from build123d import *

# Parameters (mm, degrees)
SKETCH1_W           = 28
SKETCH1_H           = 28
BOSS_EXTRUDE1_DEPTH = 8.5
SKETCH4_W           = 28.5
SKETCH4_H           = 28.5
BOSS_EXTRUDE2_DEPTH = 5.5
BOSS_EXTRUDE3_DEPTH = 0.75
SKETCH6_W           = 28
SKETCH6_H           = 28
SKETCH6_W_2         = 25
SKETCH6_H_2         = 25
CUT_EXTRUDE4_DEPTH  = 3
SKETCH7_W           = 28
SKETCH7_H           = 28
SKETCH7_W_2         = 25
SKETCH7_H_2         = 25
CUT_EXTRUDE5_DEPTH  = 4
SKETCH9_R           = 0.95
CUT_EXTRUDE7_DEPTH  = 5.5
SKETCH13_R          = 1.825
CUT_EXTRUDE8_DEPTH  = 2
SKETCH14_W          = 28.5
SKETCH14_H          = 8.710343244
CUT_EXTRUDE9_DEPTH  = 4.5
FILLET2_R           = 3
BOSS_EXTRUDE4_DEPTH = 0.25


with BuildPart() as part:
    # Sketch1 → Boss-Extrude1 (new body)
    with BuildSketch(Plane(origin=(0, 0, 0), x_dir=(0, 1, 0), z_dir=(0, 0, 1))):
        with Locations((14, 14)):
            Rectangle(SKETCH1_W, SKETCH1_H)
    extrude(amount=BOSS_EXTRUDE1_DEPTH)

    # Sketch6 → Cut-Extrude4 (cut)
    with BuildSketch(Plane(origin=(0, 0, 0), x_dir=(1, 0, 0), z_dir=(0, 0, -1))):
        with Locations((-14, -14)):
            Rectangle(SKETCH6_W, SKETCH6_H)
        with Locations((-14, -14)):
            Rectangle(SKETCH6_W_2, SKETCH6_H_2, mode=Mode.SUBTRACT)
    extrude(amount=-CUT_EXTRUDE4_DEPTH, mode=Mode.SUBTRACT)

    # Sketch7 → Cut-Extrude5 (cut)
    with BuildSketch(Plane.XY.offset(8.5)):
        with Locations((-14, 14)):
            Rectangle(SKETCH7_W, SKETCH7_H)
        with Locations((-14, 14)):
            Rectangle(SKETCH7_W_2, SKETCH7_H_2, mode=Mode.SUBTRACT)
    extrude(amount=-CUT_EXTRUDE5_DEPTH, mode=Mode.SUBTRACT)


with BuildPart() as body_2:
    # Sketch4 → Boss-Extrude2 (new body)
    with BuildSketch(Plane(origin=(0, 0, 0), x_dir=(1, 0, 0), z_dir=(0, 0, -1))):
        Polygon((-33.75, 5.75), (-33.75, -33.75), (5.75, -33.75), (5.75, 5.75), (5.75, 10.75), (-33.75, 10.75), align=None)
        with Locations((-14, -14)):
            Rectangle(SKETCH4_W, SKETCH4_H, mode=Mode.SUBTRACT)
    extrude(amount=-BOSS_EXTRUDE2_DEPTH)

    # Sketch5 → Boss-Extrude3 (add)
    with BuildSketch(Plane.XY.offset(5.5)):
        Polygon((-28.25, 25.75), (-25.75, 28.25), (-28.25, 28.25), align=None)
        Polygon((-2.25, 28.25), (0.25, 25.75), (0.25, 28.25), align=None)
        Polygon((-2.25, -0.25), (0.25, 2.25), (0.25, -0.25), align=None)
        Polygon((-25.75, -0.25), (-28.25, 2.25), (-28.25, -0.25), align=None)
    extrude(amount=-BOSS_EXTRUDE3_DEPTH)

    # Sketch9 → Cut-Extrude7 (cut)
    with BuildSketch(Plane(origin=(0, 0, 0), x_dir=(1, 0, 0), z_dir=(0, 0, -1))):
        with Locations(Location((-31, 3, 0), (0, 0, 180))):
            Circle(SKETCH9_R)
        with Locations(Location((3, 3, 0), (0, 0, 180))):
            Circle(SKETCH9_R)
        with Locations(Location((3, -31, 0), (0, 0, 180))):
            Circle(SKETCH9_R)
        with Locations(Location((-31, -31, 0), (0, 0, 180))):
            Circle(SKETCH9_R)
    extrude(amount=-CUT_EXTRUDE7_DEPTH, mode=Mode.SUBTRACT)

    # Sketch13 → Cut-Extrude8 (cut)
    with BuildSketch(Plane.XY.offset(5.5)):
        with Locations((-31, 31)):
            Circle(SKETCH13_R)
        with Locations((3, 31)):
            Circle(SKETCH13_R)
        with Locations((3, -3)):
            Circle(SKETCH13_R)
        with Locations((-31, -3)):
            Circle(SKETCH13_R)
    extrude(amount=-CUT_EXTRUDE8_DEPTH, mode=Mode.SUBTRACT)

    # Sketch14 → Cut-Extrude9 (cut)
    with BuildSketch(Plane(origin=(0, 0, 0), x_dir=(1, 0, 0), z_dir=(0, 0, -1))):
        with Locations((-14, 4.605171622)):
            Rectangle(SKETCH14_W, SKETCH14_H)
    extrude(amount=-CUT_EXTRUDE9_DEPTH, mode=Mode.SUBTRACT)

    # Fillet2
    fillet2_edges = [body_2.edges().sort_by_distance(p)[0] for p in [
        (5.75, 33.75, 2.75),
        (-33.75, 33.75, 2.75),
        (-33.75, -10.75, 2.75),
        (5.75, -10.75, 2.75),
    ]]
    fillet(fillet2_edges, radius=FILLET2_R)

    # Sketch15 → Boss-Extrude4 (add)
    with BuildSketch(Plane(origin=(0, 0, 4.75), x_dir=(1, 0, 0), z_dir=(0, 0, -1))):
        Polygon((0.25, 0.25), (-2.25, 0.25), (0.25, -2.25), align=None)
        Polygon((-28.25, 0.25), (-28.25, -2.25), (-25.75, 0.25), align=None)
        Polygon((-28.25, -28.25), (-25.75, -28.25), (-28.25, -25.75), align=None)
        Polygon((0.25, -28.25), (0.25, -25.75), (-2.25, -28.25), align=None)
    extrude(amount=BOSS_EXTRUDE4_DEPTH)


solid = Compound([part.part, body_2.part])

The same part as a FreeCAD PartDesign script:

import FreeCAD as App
import Part
import Sketcher

V = App.Vector
Q = App.Units.Quantity


def edges_at(feature, points):
    """Names of the edges that pass closest to the given points."""
    edges = feature.Shape.Edges
    near = lambda p: min(range(len(edges)), key=lambda i: edges[i].distToShape(Part.Vertex(*p))[0])
    return sorted({f"Edge{near(p) + 1}" for p in points})

doc = App.newDocument("Part")
params = doc.addObject("Spreadsheet::Sheet", "Params")
for row, (alias, value) in enumerate([
    ("sketch1_width", "28 mm"),
    ("pad1_length", "8.5 mm"),
    ("sketch2_width", "28 mm"),
    ("sketch2_width2", "25 mm"),
    ("pocket1_length", "3 mm"),
    ("sketch3_width", "28 mm"),
    ("sketch3_width2", "25 mm"),
    ("pocket2_length", "4 mm"),
    ("sketch4_width", "39.5 mm"),
    ("sketch4_width2", "28.5 mm"),
    ("sketch4_height", "44.5 mm"),
    ("pad2_length", "5.5 mm"),
    ("sketch5_width", "2.5 mm"),
    ("pad3_length", "0.75 mm"),
    ("sketch6_diameter", "1.9 mm"),
    ("pocket3_length", "5.5 mm"),
    ("sketch7_diameter", "3.65 mm"),
    ("pocket4_length", "2 mm"),
    ("sketch8_width", "28.5 mm"),
    ("pocket5_length", "4.5 mm"),
    ("fillet_radius", "3 mm"),
    ("sketch9_width", "2.5 mm"),
    ("pad4_length", "0.25 mm"),
], start=1):
    params.set(f"A{row}", alias)
    params.set(f"B{row}", "=" + value)
    params.setAlias(f"B{row}", alias)

body = doc.addObject("PartDesign::Body", "Body")

# Sketch on XY plane
sketch1 = body.newObject("Sketcher::SketchObject", "Sketch")
sketch1.AttachmentSupport = (doc.getObject("XY_Plane"), [""])
sketch1.MapMode = "FlatFace"
sketch1.addGeometry([
    Part.LineSegment(V(-28, 0, 0), V(0, 0, 0)),
    Part.LineSegment(V(0, 0, 0), V(0, 28, 0)),
    Part.LineSegment(V(0, 28, 0), V(-28, 28, 0)),
    Part.LineSegment(V(-28, 28, 0), V(-28, 0, 0)),
], False)
sketch1.addConstraint([
    Sketcher.Constraint("Coincident", 0, 2, 1, 1),
    Sketcher.Constraint("Coincident", 1, 2, 2, 1),
    Sketcher.Constraint("Coincident", 2, 2, 3, 1),
    Sketcher.Constraint("Coincident", 3, 2, 0, 1),
    Sketcher.Constraint("Horizontal", 0),
    Sketcher.Constraint("Vertical", 1),
    Sketcher.Constraint("Horizontal", 2),
    Sketcher.Constraint("Vertical", 3),
    Sketcher.Constraint("Coincident", 0, 2, -1, 1),
    Sketcher.Constraint("Equal", 2, 1),
    Sketcher.Constraint("DistanceX", 0, 1, 0, 2, Q("28 mm")),
])
sketch1.setExpression("Constraints[10]", "Params.sketch1_width")
pad1 = body.newObject("PartDesign::Pad", "Pad")
pad1.Profile = sketch1
pad1.setExpression("Length", "Params.pad1_length")

# Sketch on XY plane
sketch2 = body.newObject("Sketcher::SketchObject", "Sketch001")
sketch2.AttachmentSupport = (doc.getObject("XY_Plane"), [""])
sketch2.MapMode = "FlatFace"
sketch2.addGeometry([
    Part.LineSegment(V(-28, 0, 0), V(-28, 28, 0)),  # 0
    Part.LineSegment(V(-28, 28, 0), V(0, 28, 0)),  # 1
    Part.LineSegment(V(0, 28, 0), V(0, 0, 0)),  # 2
    Part.LineSegment(V(0, 0, 0), V(-28, 0, 0)),  # 3
    Part.LineSegment(V(-1.5, 26.5, 0), V(-26.5, 26.5, 0)),  # 4
    Part.LineSegment(V(-26.5, 26.5, 0), V(-26.5, 1.5, 0)),  # 5
    Part.LineSegment(V(-26.5, 1.5, 0), V(-1.5, 1.5, 0)),  # 6
    Part.LineSegment(V(-1.5, 1.5, 0), V(-1.5, 26.5, 0)),  # 7
], False)
sketch2.addConstraint([
    Sketcher.Constraint("Coincident", 0, 2, 1, 1),
    Sketcher.Constraint("Coincident", 1, 2, 2, 1),
    Sketcher.Constraint("Coincident", 2, 2, 3, 1),
    Sketcher.Constraint("Coincident", 3, 2, 0, 1),
    Sketcher.Constraint("Coincident", 4, 2, 5, 1),
    Sketcher.Constraint("Coincident", 5, 2, 6, 1),
    Sketcher.Constraint("Coincident", 6, 2, 7, 1),
    Sketcher.Constraint("Coincident", 7, 2, 4, 1),
    Sketcher.Constraint("Vertical", 0),
    Sketcher.Constraint("Horizontal", 1),
    Sketcher.Constraint("Vertical", 2),
    Sketcher.Constraint("Horizontal", 3),
    Sketcher.Constraint("Horizontal", 4),
    Sketcher.Constraint("Vertical", 5),
    Sketcher.Constraint("Horizontal", 6),
    Sketcher.Constraint("Vertical", 7),
    Sketcher.Constraint("Coincident", 2, 2, -1, 1),
    Sketcher.Constraint("Equal", 3, 0),
    Sketcher.Constraint("Equal", 6, 5),
    Sketcher.Constraint("DistanceX", 1, 1, 1, 2, Q("28 mm")),
    Sketcher.Constraint("DistanceX", 4, 2, 4, 1, Q("25 mm")),
    Sketcher.Constraint("DistanceX", 4, 2, -1, 1, Q("26.5 mm")),
    Sketcher.Constraint("DistanceY", -1, 1, 4, 2, Q("26.5 mm")),
])
sketch2.setExpression("Constraints[19]", "Params.sketch2_width")
sketch2.setExpression("Constraints[20]", "Params.sketch2_width2")
pocket1 = body.newObject("PartDesign::Pocket", "Pocket")
pocket1.Profile = sketch2
pocket1.setExpression("Length", "Params.pocket1_length")
pocket1.Reversed = True

# Sketch on XY plane
sketch3 = body.newObject("Sketcher::SketchObject", "Sketch002")
sketch3.AttachmentSupport = (doc.getObject("XY_Plane"), [""])
sketch3.MapMode = "FlatFace"
sketch3.AttachmentOffset = App.Placement(V(0, 0, 8.5), App.Rotation())
sketch3.addGeometry([
    Part.LineSegment(V(-28, 28, 0), V(-28, 0, 0)),  # 0
    Part.LineSegment(V(-28, 0, 0), V(0, 0, 0)),  # 1
    Part.LineSegment(V(0, 0, 0), V(0, 28, 0)),  # 2
    Part.LineSegment(V(0, 28, 0), V(-28, 28, 0)),  # 3
    Part.LineSegment(V(-1.5, 1.5, 0), V(-26.5, 1.5, 0)),  # 4
    Part.LineSegment(V(-26.5, 1.5, 0), V(-26.5, 26.5, 0)),  # 5
    Part.LineSegment(V(-26.5, 26.5, 0), V(-1.5, 26.5, 0)),  # 6
    Part.LineSegment(V(-1.5, 26.5, 0), V(-1.5, 1.5, 0)),  # 7
], False)
sketch3.addConstraint([
    Sketcher.Constraint("Coincident", 0, 2, 1, 1),
    Sketcher.Constraint("Coincident", 1, 2, 2, 1),
    Sketcher.Constraint("Coincident", 2, 2, 3, 1),
    Sketcher.Constraint("Coincident", 3, 2, 0, 1),
    Sketcher.Constraint("Coincident", 4, 2, 5, 1),
    Sketcher.Constraint("Coincident", 5, 2, 6, 1),
    Sketcher.Constraint("Coincident", 6, 2, 7, 1),
    Sketcher.Constraint("Coincident", 7, 2, 4, 1),
    Sketcher.Constraint("Vertical", 0),
    Sketcher.Constraint("Horizontal", 1),
    Sketcher.Constraint("Vertical", 2),
    Sketcher.Constraint("Horizontal", 3),
    Sketcher.Constraint("Horizontal", 4),
    Sketcher.Constraint("Vertical", 5),
    Sketcher.Constraint("Horizontal", 6),
    Sketcher.Constraint("Vertical", 7),
    Sketcher.Constraint("Coincident", 1, 2, -1, 1),
    Sketcher.Constraint("Equal", 3, 0),
    Sketcher.Constraint("Equal", 6, 5),
    Sketcher.Constraint("DistanceX", 1, 1, 1, 2, Q("28 mm")),
    Sketcher.Constraint("DistanceX", 4, 2, 4, 1, Q("25 mm")),
    Sketcher.Constraint("DistanceX", 4, 2, -1, 1, Q("26.5 mm")),
    Sketcher.Constraint("DistanceY", -1, 1, 4, 2, Q("1.5 mm")),
])
sketch3.setExpression("Constraints[19]", "Params.sketch3_width")
sketch3.setExpression("Constraints[20]", "Params.sketch3_width2")
pocket2 = body.newObject("PartDesign::Pocket", "Pocket001")
pocket2.Profile = sketch3
pocket2.setExpression("Length", "Params.pocket2_length")
body2 = doc.addObject("PartDesign::Body", "Body001")

# Sketch on XY plane
sketch4 = body2.newObject("Sketcher::SketchObject", "Sketch003")
sketch4.AttachmentSupport = (doc.getObject("XY_Plane001"), [""])
sketch4.MapMode = "FlatFace"
sketch4.addGeometry([
    Part.LineSegment(V(-33.75, 33.75, 0), V(5.75, 33.75, 0)),  # 0
    Part.LineSegment(V(5.75, 33.75, 0), V(5.75, -10.75, 0)),  # 1
    Part.LineSegment(V(5.75, -10.75, 0), V(-33.75, -10.75, 0)),  # 2
    Part.LineSegment(V(-33.75, -10.75, 0), V(-33.75, 33.75, 0)),  # 3
    Part.LineSegment(V(0.25, 28.25, 0), V(-28.25, 28.25, 0)),  # 4
    Part.LineSegment(V(-28.25, 28.25, 0), V(-28.25, -0.25, 0)),  # 5
    Part.LineSegment(V(-28.25, -0.25, 0), V(0.25, -0.25, 0)),  # 6
    Part.LineSegment(V(0.25, -0.25, 0), V(0.25, 28.25, 0)),  # 7
], False)
sketch4.addConstraint([
    Sketcher.Constraint("Coincident", 0, 2, 1, 1),
    Sketcher.Constraint("Coincident", 1, 2, 2, 1),
    Sketcher.Constraint("Coincident", 2, 2, 3, 1),
    Sketcher.Constraint("Coincident", 3, 2, 0, 1),
    Sketcher.Constraint("Coincident", 4, 2, 5, 1),
    Sketcher.Constraint("Coincident", 5, 2, 6, 1),
    Sketcher.Constraint("Coincident", 6, 2, 7, 1),
    Sketcher.Constraint("Coincident", 7, 2, 4, 1),
    Sketcher.Constraint("Horizontal", 0),
    Sketcher.Constraint("Vertical", 1),
    Sketcher.Constraint("Horizontal", 2),
    Sketcher.Constraint("Vertical", 3),
    Sketcher.Constraint("Horizontal", 4),
    Sketcher.Constraint("Vertical", 5),
    Sketcher.Constraint("Horizontal", 6),
    Sketcher.Constraint("Vertical", 7),
    Sketcher.Constraint("Equal", 6, 5),
    Sketcher.Constraint("DistanceX", 0, 1, 0, 2, Q("39.5 mm")),
    Sketcher.Constraint("DistanceX", 4, 2, 4, 1, Q("28.5 mm")),
    Sketcher.Constraint("DistanceY", 1, 2, 1, 1, Q("44.5 mm")),
    Sketcher.Constraint("DistanceX", 4, 2, 0, 2, Q("34 mm")),
    Sketcher.Constraint("DistanceY", 2, 2, 4, 2, Q("39 mm")),
    Sketcher.Constraint("DistanceX", -1, 1, 0, 2, Q("5.75 mm")),
    Sketcher.Constraint("DistanceY", -1, 1, 0, 2, Q("33.75 mm")),
])
sketch4.setExpression("Constraints[17]", "Params.sketch4_width")
sketch4.setExpression("Constraints[18]", "Params.sketch4_width2")
sketch4.setExpression("Constraints[19]", "Params.sketch4_height")
pad2 = body2.newObject("PartDesign::Pad", "Pad001")
pad2.Profile = sketch4
pad2.setExpression("Length", "Params.pad2_length")

# Sketch on XY plane
sketch5 = body2.newObject("Sketcher::SketchObject", "Sketch004")
sketch5.AttachmentSupport = (doc.getObject("XY_Plane001"), [""])
sketch5.MapMode = "FlatFace"
sketch5.AttachmentOffset = App.Placement(V(0, 0, 5.5), App.Rotation())
sketch5.addGeometry([
    Part.LineSegment(V(-28.25, 25.75, 0), V(-25.75, 28.25, 0)),  # 0
    Part.LineSegment(V(-25.75, 28.25, 0), V(-28.25, 28.25, 0)),  # 1
    Part.LineSegment(V(-28.25, 28.25, 0), V(-28.25, 25.75, 0)),  # 2
    Part.LineSegment(V(-2.25, 28.25, 0), V(0.25, 25.75, 0)),  # 3
    Part.LineSegment(V(0.25, 25.75, 0), V(0.25, 28.25, 0)),  # 4
    Part.LineSegment(V(0.25, 28.25, 0), V(-2.25, 28.25, 0)),  # 5
    Part.LineSegment(V(0.25, 2.25, 0), V(-2.25, -0.25, 0)),  # 6
    Part.LineSegment(V(-2.25, -0.25, 0), V(0.25, -0.25, 0)),  # 7
    Part.LineSegment(V(0.25, -0.25, 0), V(0.25, 2.25, 0)),  # 8
    Part.LineSegment(V(-25.75, -0.25, 0), V(-28.25, 2.25, 0)),  # 9
    Part.LineSegment(V(-28.25, 2.25, 0), V(-28.25, -0.25, 0)),  # 10
    Part.LineSegment(V(-28.25, -0.25, 0), V(-25.75, -0.25, 0)),  # 11
], False)
sketch5.addConstraint([
    Sketcher.Constraint("Coincident", 0, 2, 1, 1),
    Sketcher.Constraint("Coincident", 1, 2, 2, 1),
    Sketcher.Constraint("Coincident", 2, 2, 0, 1),
    Sketcher.Constraint("Coincident", 3, 2, 4, 1),
    Sketcher.Constraint("Coincident", 4, 2, 5, 1),
    Sketcher.Constraint("Coincident", 5, 2, 3, 1),
    Sketcher.Constraint("Coincident", 6, 2, 7, 1),
    Sketcher.Constraint("Coincident", 7, 2, 8, 1),
    Sketcher.Constraint("Coincident", 8, 2, 6, 1),
    Sketcher.Constraint("Coincident", 9, 2, 10, 1),
    Sketcher.Constraint("Coincident", 10, 2, 11, 1),
    Sketcher.Constraint("Coincident", 11, 2, 9, 1),
    Sketcher.Constraint("Horizontal", 1),
    Sketcher.Constraint("Vertical", 2),
    Sketcher.Constraint("Vertical", 4),
    Sketcher.Constraint("Horizontal", 5),
    Sketcher.Constraint("Horizontal", 7),
    Sketcher.Constraint("Vertical", 8),
    Sketcher.Constraint("Vertical", 10),
    Sketcher.Constraint("Horizontal", 11),
    Sketcher.Constraint("Perpendicular", 0, 3),
    Sketcher.Constraint("Perpendicular", 3, 6),
    Sketcher.Constraint("Perpendicular", 6, 9),
    Sketcher.Constraint("Horizontal", 2, 2, 3, 2),
    Sketcher.Constraint("Horizontal", 1, 2, 4, 2),
    Sketcher.Constraint("Horizontal", 8, 2, 9, 2),
    Sketcher.Constraint("Horizontal", 7, 2, 10, 2),
    Sketcher.Constraint("Vertical", 5, 2, 6, 2),
    Sketcher.Constraint("Vertical", 4, 2, 7, 2),
    Sketcher.Constraint("Vertical", 2, 2, 9, 2),
    Sketcher.Constraint("Vertical", 0, 2, 11, 2),
    Sketcher.Constraint("DistanceX", 1, 2, 1, 1, Q("2.5 mm")),
    Sketcher.Constraint("DistanceX", 0, 2, 3, 2, Q("26 mm")),
    Sketcher.Constraint("DistanceY", 6, 2, 3, 2, Q("26 mm")),
    Sketcher.Constraint("DistanceX", 0, 2, -1, 1, Q("25.75 mm")),
    Sketcher.Constraint("DistanceY", -1, 1, 0, 2, Q("28.25 mm")),
])
sketch5.setExpression("Constraints[31]", "Params.sketch5_width")
pad3 = body2.newObject("PartDesign::Pad", "Pad002")
pad3.Profile = sketch5
pad3.setExpression("Length", "Params.pad3_length")
pad3.Reversed = True

# Sketch on XY plane
sketch6 = body2.newObject("Sketcher::SketchObject", "Sketch005")
sketch6.AttachmentSupport = (doc.getObject("XY_Plane001"), [""])
sketch6.MapMode = "FlatFace"
sketch6.addGeometry([
    Part.Circle(V(-31, -3, 0), V(0, 0, 1), 0.95),
    Part.Circle(V(3, -3, 0), V(0, 0, 1), 0.95),
    Part.Circle(V(3, 31, 0), V(0, 0, 1), 0.95),
    Part.Circle(V(-31, 31, 0), V(0, 0, 1), 0.95),
], False)
sketch6.addConstraint([
    Sketcher.Constraint("Equal", 0, 1),
    Sketcher.Constraint("Equal", 1, 2),
    Sketcher.Constraint("Equal", 2, 3),
    Sketcher.Constraint("Horizontal", 0, 3, 1, 3),
    Sketcher.Constraint("Horizontal", 2, 3, 3, 3),
    Sketcher.Constraint("Vertical", 1, 3, 2, 3),
    Sketcher.Constraint("Vertical", 0, 3, 3, 3),
    Sketcher.Constraint("Diameter", 0, Q("1.9 mm")),
    Sketcher.Constraint("DistanceX", 0, 3, -1, 1, Q("31 mm")),
    Sketcher.Constraint("DistanceY", 0, 3, -1, 1, Q("3 mm")),
    Sketcher.Constraint("DistanceX", -1, 1, 1, 3, Q("3 mm")),
    Sketcher.Constraint("DistanceY", -1, 1, 2, 3, Q("31 mm")),
])
sketch6.setExpression("Constraints[7]", "Params.sketch6_diameter")
pocket3 = body2.newObject("PartDesign::Pocket", "Pocket002")
pocket3.Profile = sketch6
pocket3.setExpression("Length", "Params.pocket3_length")
pocket3.Reversed = True

# Sketch on XY plane
sketch7 = body2.newObject("Sketcher::SketchObject", "Sketch006")
sketch7.AttachmentSupport = (doc.getObject("XY_Plane001"), [""])
sketch7.MapMode = "FlatFace"
sketch7.AttachmentOffset = App.Placement(V(0, 0, 5.5), App.Rotation())
sketch7.addGeometry([
    Part.Circle(V(-31, 31, 0), V(0, 0, 1), 1.825),
    Part.Circle(V(3, 31, 0), V(0, 0, 1), 1.825),
    Part.Circle(V(3, -3, 0), V(0, 0, 1), 1.825),
    Part.Circle(V(-31, -3, 0), V(0, 0, 1), 1.825),
], False)
sketch7.addConstraint([
    Sketcher.Constraint("Equal", 0, 1),
    Sketcher.Constraint("Equal", 1, 2),
    Sketcher.Constraint("Equal", 2, 3),
    Sketcher.Constraint("Horizontal", 0, 3, 1, 3),
    Sketcher.Constraint("Horizontal", 2, 3, 3, 3),
    Sketcher.Constraint("Vertical", 1, 3, 2, 3),
    Sketcher.Constraint("Vertical", 0, 3, 3, 3),
    Sketcher.Constraint("Diameter", 0, Q("3.65 mm")),
    Sketcher.Constraint("DistanceX", 0, 3, -1, 1, Q("31 mm")),
    Sketcher.Constraint("DistanceY", -1, 1, 0, 3, Q("31 mm")),
    Sketcher.Constraint("DistanceX", -1, 1, 1, 3, Q("3 mm")),
    Sketcher.Constraint("DistanceY", 2, 3, -1, 1, Q("3 mm")),
])
sketch7.setExpression("Constraints[7]", "Params.sketch7_diameter")
pocket4 = body2.newObject("PartDesign::Pocket", "Pocket003")
pocket4.Profile = sketch7
pocket4.setExpression("Length", "Params.pocket4_length")

# Sketch on XY plane
sketch8 = body2.newObject("Sketcher::SketchObject", "Sketch007")
sketch8.AttachmentSupport = (doc.getObject("XY_Plane001"), [""])
sketch8.MapMode = "FlatFace"
sketch8.addGeometry([
    Part.LineSegment(V(-28.25, -8.960343, 0), V(-28.25, -0.25, 0)),
    Part.LineSegment(V(-28.25, -0.25, 0), V(0.25, -0.25, 0)),
    Part.LineSegment(V(0.25, -0.25, 0), V(0.25, -8.960343, 0)),
    Part.LineSegment(V(0.25, -8.960343, 0), V(-28.25, -8.960343, 0)),
], False)
sketch8.addConstraint([
    Sketcher.Constraint("Coincident", 0, 2, 1, 1),
    Sketcher.Constraint("Coincident", 1, 2, 2, 1),
    Sketcher.Constraint("Coincident", 2, 2, 3, 1),
    Sketcher.Constraint("Coincident", 3, 2, 0, 1),
    Sketcher.Constraint("Vertical", 0),
    Sketcher.Constraint("Horizontal", 1),
    Sketcher.Constraint("Vertical", 2),
    Sketcher.Constraint("Horizontal", 3),
    Sketcher.Constraint("DistanceX", 1, 1, 1, 2, Q("28.5 mm")),
    Sketcher.Constraint("DistanceX", 0, 2, -1, 1, Q("28.25 mm")),
    Sketcher.Constraint("DistanceY", 0, 2, -1, 1, Q("0.25 mm")),
    Sketcher.Constraint("DistanceY", 0, 1, 0, 2, Q("8.710343 mm")),
])
sketch8.setExpression("Constraints[8]", "Params.sketch8_width")
pocket5 = body2.newObject("PartDesign::Pocket", "Pocket004")
pocket5.Profile = sketch8
pocket5.setExpression("Length", "Params.pocket5_length")
pocket5.Reversed = True
doc.recompute()

fillet = body2.newObject("PartDesign::Fillet", "Fillet")
fillet.Base = (pocket5, edges_at(pocket5, [
    (5.75, 33.75, 2.75),
    (-33.75, 33.75, 2.75),
    (-33.75, -10.75, 2.75),
    (5.75, -10.75, 2.75),
]))
fillet.setExpression("Radius", "Params.fillet_radius")

# Sketch on XY plane
sketch9 = body2.newObject("Sketcher::SketchObject", "Sketch008")
sketch9.AttachmentSupport = (doc.getObject("XY_Plane001"), [""])
sketch9.MapMode = "FlatFace"
sketch9.AttachmentOffset = App.Placement(V(0, 0, 4.75), App.Rotation())
sketch9.addGeometry([
    Part.LineSegment(V(0.25, -0.25, 0), V(-2.25, -0.25, 0)),  # 0
    Part.LineSegment(V(-2.25, -0.25, 0), V(0.25, 2.25, 0)),  # 1
    Part.LineSegment(V(0.25, 2.25, 0), V(0.25, -0.25, 0)),  # 2
    Part.LineSegment(V(-28.25, -0.25, 0), V(-28.25, 2.25, 0)),  # 3
    Part.LineSegment(V(-28.25, 2.25, 0), V(-25.75, -0.25, 0)),  # 4
    Part.LineSegment(V(-25.75, -0.25, 0), V(-28.25, -0.25, 0)),  # 5
    Part.LineSegment(V(-28.25, 28.25, 0), V(-25.75, 28.25, 0)),  # 6
    Part.LineSegment(V(-25.75, 28.25, 0), V(-28.25, 25.75, 0)),  # 7
    Part.LineSegment(V(-28.25, 25.75, 0), V(-28.25, 28.25, 0)),  # 8
    Part.LineSegment(V(0.25, 28.25, 0), V(0.25, 25.75, 0)),  # 9
    Part.LineSegment(V(0.25, 25.75, 0), V(-2.25, 28.25, 0)),  # 10
    Part.LineSegment(V(-2.25, 28.25, 0), V(0.25, 28.25, 0)),  # 11
], False)
sketch9.addConstraint([
    Sketcher.Constraint("Coincident", 0, 2, 1, 1),
    Sketcher.Constraint("Coincident", 1, 2, 2, 1),
    Sketcher.Constraint("Coincident", 2, 2, 0, 1),
    Sketcher.Constraint("Coincident", 3, 2, 4, 1),
    Sketcher.Constraint("Coincident", 4, 2, 5, 1),
    Sketcher.Constraint("Coincident", 5, 2, 3, 1),
    Sketcher.Constraint("Coincident", 6, 2, 7, 1),
    Sketcher.Constraint("Coincident", 7, 2, 8, 1),
    Sketcher.Constraint("Coincident", 8, 2, 6, 1),
    Sketcher.Constraint("Coincident", 9, 2, 10, 1),
    Sketcher.Constraint("Coincident", 10, 2, 11, 1),
    Sketcher.Constraint("Coincident", 11, 2, 9, 1),
    Sketcher.Constraint("Horizontal", 0),
    Sketcher.Constraint("Vertical", 2),
    Sketcher.Constraint("Vertical", 3),
    Sketcher.Constraint("Horizontal", 5),
    Sketcher.Constraint("Horizontal", 6),
    Sketcher.Constraint("Vertical", 8),
    Sketcher.Constraint("Vertical", 9),
    Sketcher.Constraint("Horizontal", 11),
    Sketcher.Constraint("Perpendicular", 1, 4),
    Sketcher.Constraint("Perpendicular", 4, 7),
    Sketcher.Constraint("Perpendicular", 7, 10),
    Sketcher.Constraint("Horizontal", 1, 2, 3, 2),
    Sketcher.Constraint("Horizontal", 2, 2, 4, 2),
    Sketcher.Constraint("Horizontal", 7, 2, 9, 2),
    Sketcher.Constraint("Horizontal", 8, 2, 10, 2),
    Sketcher.Constraint("Vertical", 4, 2, 6, 2),
    Sketcher.Constraint("Vertical", 5, 2, 7, 2),
    Sketcher.Constraint("Vertical", 2, 2, 9, 2),
    Sketcher.Constraint("Vertical", 0, 2, 10, 2),
    Sketcher.Constraint("DistanceX", 0, 2, 0, 1, Q("2.5 mm")),
    Sketcher.Constraint("DistanceX", 3, 2, 0, 2, Q("26 mm")),
    Sketcher.Constraint("DistanceY", 3, 2, 6, 2, Q("26 mm")),
    Sketcher.Constraint("DistanceX", 0, 2, -1, 1, Q("2.25 mm")),
    Sketcher.Constraint("DistanceY", 0, 2, -1, 1, Q("0.25 mm")),
])
sketch9.setExpression("Constraints[31]", "Params.sketch9_width")
pad4 = body2.newObject("PartDesign::Pad", "Pad003")
pad4.Profile = sketch9
pad4.setExpression("Length", "Params.pad4_length")
pad4.Reversed = True

doc.recompute()
